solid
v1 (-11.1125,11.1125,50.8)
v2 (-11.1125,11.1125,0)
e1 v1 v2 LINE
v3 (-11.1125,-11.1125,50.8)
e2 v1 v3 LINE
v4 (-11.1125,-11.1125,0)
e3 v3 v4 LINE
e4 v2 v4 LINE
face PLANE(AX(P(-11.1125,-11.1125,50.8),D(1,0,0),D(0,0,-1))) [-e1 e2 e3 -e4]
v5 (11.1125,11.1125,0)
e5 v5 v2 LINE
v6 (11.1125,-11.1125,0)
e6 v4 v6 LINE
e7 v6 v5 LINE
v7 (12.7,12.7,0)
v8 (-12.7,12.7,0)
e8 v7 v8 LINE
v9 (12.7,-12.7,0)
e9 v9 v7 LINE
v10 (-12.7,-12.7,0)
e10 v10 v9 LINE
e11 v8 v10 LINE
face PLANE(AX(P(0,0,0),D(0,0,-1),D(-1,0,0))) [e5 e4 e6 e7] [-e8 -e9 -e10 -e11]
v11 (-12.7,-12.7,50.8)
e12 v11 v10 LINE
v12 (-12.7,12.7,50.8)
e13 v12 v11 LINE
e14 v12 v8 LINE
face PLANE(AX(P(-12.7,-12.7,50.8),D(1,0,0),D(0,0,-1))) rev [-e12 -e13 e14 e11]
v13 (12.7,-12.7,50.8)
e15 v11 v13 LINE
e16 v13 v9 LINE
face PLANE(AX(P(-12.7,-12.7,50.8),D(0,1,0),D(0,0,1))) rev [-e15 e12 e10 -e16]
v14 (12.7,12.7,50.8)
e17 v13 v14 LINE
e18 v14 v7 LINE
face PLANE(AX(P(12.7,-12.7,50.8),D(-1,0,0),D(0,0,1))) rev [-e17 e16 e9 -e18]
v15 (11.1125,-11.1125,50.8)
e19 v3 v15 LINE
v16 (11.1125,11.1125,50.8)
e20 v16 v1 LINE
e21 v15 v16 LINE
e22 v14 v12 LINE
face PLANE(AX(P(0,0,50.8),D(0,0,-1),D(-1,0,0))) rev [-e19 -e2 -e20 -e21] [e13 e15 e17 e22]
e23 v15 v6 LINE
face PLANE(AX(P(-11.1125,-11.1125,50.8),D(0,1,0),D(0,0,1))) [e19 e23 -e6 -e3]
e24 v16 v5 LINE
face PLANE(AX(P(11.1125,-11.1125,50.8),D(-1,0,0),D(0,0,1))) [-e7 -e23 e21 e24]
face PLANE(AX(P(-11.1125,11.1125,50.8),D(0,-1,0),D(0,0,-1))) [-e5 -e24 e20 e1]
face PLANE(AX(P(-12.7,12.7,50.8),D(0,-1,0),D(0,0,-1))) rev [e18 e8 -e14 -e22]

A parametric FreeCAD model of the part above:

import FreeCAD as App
import Part
import Sketcher

V = App.Vector
Q = App.Units.Quantity


def add_polygon(sketch, points):
    """Adds a closed chain of lines whose ends are joined by coincident constraints."""
    first, n = sketch.GeometryCount, len(points)
    for a, b in zip(points, points[1:] + points[:1]):
        sketch.addGeometry(Part.LineSegment(App.Vector(*a, 0), App.Vector(*b, 0)), False)
    for i in range(n):
        sketch.addConstraint(Sketcher.Constraint("Coincident", first + i, 2, first + (i + 1) % n, 1))

doc = App.newDocument("Part")
body = doc.addObject("PartDesign::Body", "Body")

# Sketch on XY plane
sketch1 = body.newObject("Sketcher::SketchObject", "Sketch")
sketch1.AttachmentSupport = (doc.getObject("XY_Plane"), [""])
sketch1.MapMode = "FlatFace"
add_polygon(sketch1, [(-13, 13), (-13, -13), (13, -13), (13, 13)])  # lines 0-3
add_polygon(sketch1, [(11, -11), (-11, -11), (-11, 11), (11, 11)])  # lines 4-7
sketch1.addConstraint([
    Sketcher.Constraint("Vertical", 0),
    Sketcher.Constraint("Horizontal", 1),
    Sketcher.Constraint("Vertical", 2),
    Sketcher.Constraint("Horizontal", 3),
    Sketcher.Constraint("Horizontal", 4),
    Sketcher.Constraint("Vertical", 5),
    Sketcher.Constraint("Horizontal", 6),
    Sketcher.Constraint("Vertical", 7),
    Sketcher.Constraint("Symmetric", 0, 2, 2, 2, -1, 1),
    Sketcher.Constraint("Symmetric", 4, 2, 6, 2, -1, 1),
    Sketcher.Constraint("Equal", 3, 0),
    Sketcher.Constraint("Equal", 6, 5),
    Sketcher.Constraint("DistanceX", 1, 1, 1, 2, Q("1 in")),
    Sketcher.Constraint("DistanceX", 4, 2, 4, 1, Q("0.875 in")),
])
pad1 = body.newObject("PartDesign::Pad", "Pad")
pad1.Profile = sketch1
pad1.Length = Q("2 in")

doc.recompute()
